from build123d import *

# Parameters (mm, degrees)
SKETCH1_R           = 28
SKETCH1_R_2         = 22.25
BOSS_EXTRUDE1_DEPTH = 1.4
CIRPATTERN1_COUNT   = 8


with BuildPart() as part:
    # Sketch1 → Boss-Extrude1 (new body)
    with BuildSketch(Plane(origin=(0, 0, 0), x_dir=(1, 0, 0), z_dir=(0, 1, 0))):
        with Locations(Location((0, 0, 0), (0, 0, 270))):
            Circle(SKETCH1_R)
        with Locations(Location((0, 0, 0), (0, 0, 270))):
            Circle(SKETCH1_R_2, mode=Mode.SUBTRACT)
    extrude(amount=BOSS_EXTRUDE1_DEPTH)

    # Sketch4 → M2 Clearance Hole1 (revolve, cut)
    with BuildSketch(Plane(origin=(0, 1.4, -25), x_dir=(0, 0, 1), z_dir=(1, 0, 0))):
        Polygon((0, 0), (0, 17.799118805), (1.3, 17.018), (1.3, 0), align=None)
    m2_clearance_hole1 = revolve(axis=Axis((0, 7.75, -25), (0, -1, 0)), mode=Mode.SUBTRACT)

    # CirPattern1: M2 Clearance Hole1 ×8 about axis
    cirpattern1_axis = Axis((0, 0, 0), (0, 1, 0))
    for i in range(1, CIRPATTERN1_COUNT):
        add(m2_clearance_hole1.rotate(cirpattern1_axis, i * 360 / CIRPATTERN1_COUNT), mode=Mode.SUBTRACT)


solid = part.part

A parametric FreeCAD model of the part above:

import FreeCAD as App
import Part
import Sketcher

V = App.Vector
Q = App.Units.Quantity

doc = App.newDocument("Part")
body = doc.addObject("PartDesign::Body", "Body")

# Sketch on XZ plane
sketch1 = body.newObject("Sketcher::SketchObject", "Sketch")
sketch1.AttachmentSupport = (doc.getObject("XZ_Plane"), [""])
sketch1.MapMode = "FlatFace"
sketch1.addGeometry(Part.Circle(V(0, 0, 0), V(0, 0, 1), 28), False)
sketch1.addGeometry(Part.Circle(V(0, 0, 0), V(0, 0, 1), 22), False)
sketch1.addConstraint(Sketcher.Constraint("Coincident", 0, 3, -1, 1))
sketch1.addConstraint(Sketcher.Constraint("Coincident", 1, 3, -1, 1))
sketch1.addConstraint(Sketcher.Constraint("Diameter", 0, 56.0))
sketch1.addConstraint(Sketcher.Constraint("Diameter", 1, 44.5))
pad1 = body.newObject("PartDesign::Pad", "Pad")
pad1.Profile = sketch1
pad1.Length = 1.4
pad1.Reversed = True

# Sketch on YZ plane
sketch2 = body.newObject("Sketcher::SketchObject", "Sketch001")
sketch2.AttachmentSupport = (doc.getObject("YZ_Plane"), [""])
sketch2.MapMode = "FlatFace"
sketch2.addGeometry(Part.LineSegment(V(-16.4, -25, 0), V(1.4, -25, 0)), False)
sketch2.addGeometry(Part.LineSegment(V(1.4, -25, 0), V(1.4, -23.7, 0)), False)
sketch2.addGeometry(Part.LineSegment(V(1.4, -23.7, 0), V(-15.6, -23.7, 0)), False)
sketch2.addGeometry(Part.LineSegment(V(-15.6, -23.7, 0), V(-16.4, -25, 0)), False)
sketch2.addGeometry(Part.LineSegment(V(1.4, -25, 0), V(-16.4, -25, 0)), True)  # axis
sketch2.addConstraint(Sketcher.Constraint("Coincident", 0, 2, 1, 1))
sketch2.addConstraint(Sketcher.Constraint("Coincident", 1, 2, 2, 1))
sketch2.addConstraint(Sketcher.Constraint("Coincident", 2, 2, 3, 1))
sketch2.addConstraint(Sketcher.Constraint("Coincident", 3, 2, 0, 1))
sketch2.addConstraint(Sketcher.Constraint("Horizontal", 0))
sketch2.addConstraint(Sketcher.Constraint("Vertical", 1))
sketch2.addConstraint(Sketcher.Constraint("Horizontal", 2))
sketch2.addConstraint(Sketcher.Constraint("Horizontal", 4))
sketch2.addConstraint(Sketcher.Constraint("Coincident", 4, 1, 0, 2))
sketch2.addConstraint(Sketcher.Constraint("Equal", 0, 4))
sketch2.addConstraint(Sketcher.Constraint("Angle", 3, Q("-121 deg")))
sketch2.addConstraint(Sketcher.Constraint("DistanceY", 1, 1, 1, 2, 1.3))
sketch2.addConstraint(Sketcher.Constraint("DistanceY", 0, 2, -1, 1, 25.0))
sketch2.addConstraint(Sketcher.Constraint("DistanceX", -1, 1, 0, 2, 1.4))
sketch2.addConstraint(Sketcher.Constraint("DistanceX", 2, 2, 2, 1, 17.018))
groove = body.newObject("PartDesign::Groove", "Groove")
groove.Profile = sketch2
groove.ReferenceAxis = (sketch2, ["Axis0"])
groove.Angle = 360
doc.recompute()

polarpattern = body.newObject("PartDesign::PolarPattern", "PolarPattern")
polarpattern.Originals = [groove]
polarpattern.Axis = (doc.getObject("Y_Axis"), [""])
polarpattern.Angle = 360
polarpattern.Occurrences = 8
body.Tip = polarpattern

doc.recompute()
